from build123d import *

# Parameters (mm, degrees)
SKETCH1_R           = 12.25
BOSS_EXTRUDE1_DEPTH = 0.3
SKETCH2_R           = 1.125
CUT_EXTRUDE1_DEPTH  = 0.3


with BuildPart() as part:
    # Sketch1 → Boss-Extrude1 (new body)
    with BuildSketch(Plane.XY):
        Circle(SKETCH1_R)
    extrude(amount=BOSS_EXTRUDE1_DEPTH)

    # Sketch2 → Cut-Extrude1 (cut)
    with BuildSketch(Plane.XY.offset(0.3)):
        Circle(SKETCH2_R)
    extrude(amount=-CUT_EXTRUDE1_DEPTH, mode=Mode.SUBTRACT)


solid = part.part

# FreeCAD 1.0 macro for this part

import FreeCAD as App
import Part
import Sketcher

V = App.Vector

doc = App.newDocument("Part")
body = doc.addObject("PartDesign::Body", "Body")

sketch1 = doc.addObject("Sketcher::SketchObject", "Sketch")
body.addObject(sketch1)
sketch1.AttachmentSupport = (doc.XY_Plane, [""])
sketch1.MapMode = "FlatFace"
sketch1.addGeometry(Part.Circle(V(0, 0, 0), V(0, 0, 1), 12), False)
sketch1.addConstraint([
    Sketcher.Constraint("Coincident", 0, 3, -1, 1),
    Sketcher.Constraint("Diameter", 0, 24.5),
])
pad1 = doc.addObject("PartDesign::Pad", "Pad")
body.addObject(pad1)
pad1.Profile = sketch1
pad1.Length = 0.3

sketch2 = doc.addObject("Sketcher::SketchObject", "Sketch001")
body.addObject(sketch2)
sketch2.AttachmentSupport = (doc.XY_Plane, [""])
sketch2.MapMode = "FlatFace"
sketch2.AttachmentOffset = App.Placement(V(0, 0, 0.3), App.Rotation())
sketch2.addGeometry(Part.Circle(V(0, 0, 0), V(0, 0, 1), 1.1), False)
sketch2.addConstraint([
    Sketcher.Constraint("Coincident", 0, 3, -1, 1),
    Sketcher.Constraint("Diameter", 0, 2.25),
])
pocket1 = doc.addObject("PartDesign::Pocket", "Pocket")
body.addObject(pocket1)
pocket1.Profile = sketch2
pocket1.Length = 0.3

doc.recompute()
